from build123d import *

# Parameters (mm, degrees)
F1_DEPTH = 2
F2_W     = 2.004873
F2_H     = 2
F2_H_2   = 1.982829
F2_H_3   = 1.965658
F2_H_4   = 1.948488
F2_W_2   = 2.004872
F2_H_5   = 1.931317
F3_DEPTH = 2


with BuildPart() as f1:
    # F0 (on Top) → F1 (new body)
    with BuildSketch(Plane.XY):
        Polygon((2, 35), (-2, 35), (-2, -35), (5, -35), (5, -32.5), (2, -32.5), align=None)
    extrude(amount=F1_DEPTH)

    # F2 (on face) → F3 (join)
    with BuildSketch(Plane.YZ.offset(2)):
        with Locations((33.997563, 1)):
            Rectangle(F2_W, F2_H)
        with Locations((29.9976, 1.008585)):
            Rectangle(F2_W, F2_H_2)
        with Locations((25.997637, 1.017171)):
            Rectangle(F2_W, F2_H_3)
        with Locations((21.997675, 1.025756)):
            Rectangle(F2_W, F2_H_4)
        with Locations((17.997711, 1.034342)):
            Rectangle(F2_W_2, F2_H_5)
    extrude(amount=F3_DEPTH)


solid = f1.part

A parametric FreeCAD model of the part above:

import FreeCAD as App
import Part
import Sketcher

doc = App.newDocument("Part")
body = doc.addObject("PartDesign::Body", "Body")

# Sketch on XY plane
sketch1 = doc.addObject("Sketcher::SketchObject", "Sketch")
body.addObject(sketch1)
sketch1.AttachmentSupport = (doc.XY_Plane, [""])
sketch1.MapMode = "FlatFace"
sketch1.addGeometry(Part.LineSegment(App.Vector(2, 35, 0), App.Vector(-2, 35, 0)), False)
sketch1.addGeometry(Part.LineSegment(App.Vector(-2, 35, 0), App.Vector(-2, -35, 0)), False)
sketch1.addGeometry(Part.LineSegment(App.Vector(-2, -35, 0), App.Vector(5, -35, 0)), False)
sketch1.addGeometry(Part.LineSegment(App.Vector(5, -35, 0), App.Vector(5, -32.5, 0)), False)
sketch1.addGeometry(Part.LineSegment(App.Vector(5, -32.5, 0), App.Vector(2, -32.5, 0)), False)
sketch1.addGeometry(Part.LineSegment(App.Vector(2, -32.5, 0), App.Vector(2, 35, 0)), False)
sketch1.addConstraint(Sketcher.Constraint("Coincident", 0, 2, 1, 1))
sketch1.addConstraint(Sketcher.Constraint("Coincident", 1, 2, 2, 1))
sketch1.addConstraint(Sketcher.Constraint("Coincident", 2, 2, 3, 1))
sketch1.addConstraint(Sketcher.Constraint("Coincident", 3, 2, 4, 1))
sketch1.addConstraint(Sketcher.Constraint("Coincident", 4, 2, 5, 1))
sketch1.addConstraint(Sketcher.Constraint("Coincident", 5, 2, 0, 1))
sketch1.addConstraint(Sketcher.Constraint("Horizontal", 0))
sketch1.addConstraint(Sketcher.Constraint("Vertical", 1))
sketch1.addConstraint(Sketcher.Constraint("Horizontal", 2))
sketch1.addConstraint(Sketcher.Constraint("Vertical", 3))
sketch1.addConstraint(Sketcher.Constraint("Horizontal", 4))
sketch1.addConstraint(Sketcher.Constraint("Vertical", 5))
sketch1.addConstraint(Sketcher.Constraint("Symmetric", 1, 2, 5, 2, -1, 1))
sketch1.addConstraint(Sketcher.Constraint("DistanceX", 0, 2, 0, 1, 4.0))
sketch1.addConstraint(Sketcher.Constraint("DistanceX", 2, 1, 2, 2, 7.0))
sketch1.addConstraint(Sketcher.Constraint("DistanceY", 1, 2, 1, 1, 70.0))
sketch1.addConstraint(Sketcher.Constraint("DistanceY", 3, 1, 3, 2, 2.5))
pad1 = doc.addObject("PartDesign::Pad", "Pad")
body.addObject(pad1)
pad1.Profile = sketch1
pad1.Length = 2

# Sketch on YZ plane
sketch2 = doc.addObject("Sketcher::SketchObject", "Sketch001")
body.addObject(sketch2)
sketch2.AttachmentSupport = (doc.YZ_Plane, [""])
sketch2.MapMode = "FlatFace"
sketch2.AttachmentOffset = App.Placement(App.Vector(0, 0, 2), App.Rotation())
sketch2.addGeometry(Part.LineSegment(App.Vector(32.995126, 2, 0), App.Vector(32.995126, 0, 0)), False)
sketch2.addGeometry(Part.LineSegment(App.Vector(32.995126, 0, 0), App.Vector(35, 0, 0)), False)
sketch2.addGeometry(Part.LineSegment(App.Vector(35, 0, 0), App.Vector(35, 2, 0)), False)
sketch2.addGeometry(Part.LineSegment(App.Vector(35, 2, 0), App.Vector(32.995126, 2, 0)), False)
sketch2.addGeometry(Part.LineSegment(App.Vector(28.995164, 1.999999, 0), App.Vector(28.995164, 0.017171, 0)), False)
sketch2.addGeometry(Part.LineSegment(App.Vector(28.995164, 0.017171, 0), App.Vector(31.000037, 0.017171, 0)), False)
sketch2.addGeometry(Part.LineSegment(App.Vector(31.000037, 0.017171, 0), App.Vector(31.000037, 1.999999, 0)), False)
sketch2.addGeometry(Part.LineSegment(App.Vector(31.000037, 1.999999, 0), App.Vector(28.995164, 1.999999, 0)), False)
sketch2.addGeometry(Part.LineSegment(App.Vector(24.9952, 2, 0), App.Vector(24.9952, 0.034342, 0)), False)
sketch2.addGeometry(Part.LineSegment(App.Vector(24.9952, 0.034342, 0), App.Vector(27.000073, 0.034342, 0)), False)
sketch2.addGeometry(Part.LineSegment(App.Vector(27.000073, 0.034342, 0), App.Vector(27.000073, 2, 0)), False)
sketch2.addGeometry(Part.LineSegment(App.Vector(27.000073, 2, 0), App.Vector(24.9952, 2, 0)), False)
sketch2.addGeometry(Part.LineSegment(App.Vector(20.995238, 2, 0), App.Vector(20.995238, 0.051512, 0)), False)
sketch2.addGeometry(Part.LineSegment(App.Vector(20.995238, 0.051512, 0), App.Vector(23.000111, 0.051512, 0)), False)
sketch2.addGeometry(Part.LineSegment(App.Vector(23.000111, 0.051512, 0), App.Vector(23.000111, 2, 0)), False)
sketch2.addGeometry(Part.LineSegment(App.Vector(23.000111, 2, 0), App.Vector(20.995238, 2, 0)), False)
sketch2.addGeometry(Part.LineSegment(App.Vector(16.995275, 2.000001, 0), App.Vector(16.995275, 0.068683, 0)), False)
sketch2.addGeometry(Part.LineSegment(App.Vector(16.995275, 0.068683, 0), App.Vector(19.000147, 0.068683, 0)), False)
sketch2.addGeometry(Part.LineSegment(App.Vector(19.000147, 0.068683, 0), App.Vector(19.000147, 2.000001, 0)), False)
sketch2.addGeometry(Part.LineSegment(App.Vector(19.000147, 2.000001, 0), App.Vector(16.995275, 2.000001, 0)), False)
sketch2.addConstraint(Sketcher.Constraint("Coincident", 0, 2, 1, 1))
sketch2.addConstraint(Sketcher.Constraint("Coincident", 1, 2, 2, 1))
sketch2.addConstraint(Sketcher.Constraint("Coincident", 2, 2, 3, 1))
sketch2.addConstraint(Sketcher.Constraint("Coincident", 3, 2, 0, 1))
sketch2.addConstraint(Sketcher.Constraint("Coincident", 4, 2, 5, 1))
sketch2.addConstraint(Sketcher.Constraint("Coincident", 5, 2, 6, 1))
sketch2.addConstraint(Sketcher.Constraint("Coincident", 6, 2, 7, 1))
sketch2.addConstraint(Sketcher.Constraint("Coincident", 7, 2, 4, 1))
sketch2.addConstraint(Sketcher.Constraint("Coincident", 8, 2, 9, 1))
sketch2.addConstraint(Sketcher.Constraint("Coincident", 9, 2, 10, 1))
sketch2.addConstraint(Sketcher.Constraint("Coincident", 10, 2, 11, 1))
sketch2.addConstraint(Sketcher.Constraint("Coincident", 11, 2, 8, 1))
sketch2.addConstraint(Sketcher.Constraint("Coincident", 12, 2, 13, 1))
sketch2.addConstraint(Sketcher.Constraint("Coincident", 13, 2, 14, 1))
sketch2.addConstraint(Sketcher.Constraint("Coincident", 14, 2, 15, 1))
sketch2.addConstraint(Sketcher.Constraint("Coincident", 15, 2, 12, 1))
sketch2.addConstraint(Sketcher.Constraint("Coincident", 16, 2, 17, 1))
sketch2.addConstraint(Sketcher.Constraint("Coincident", 17, 2, 18, 1))
sketch2.addConstraint(Sketcher.Constraint("Coincident", 18, 2, 19, 1))
sketch2.addConstraint(Sketcher.Constraint("Coincident", 19, 2, 16, 1))
sketch2.addConstraint(Sketcher.Constraint("Vertical", 0))
sketch2.addConstraint(Sketcher.Constraint("Horizontal", 1))
sketch2.addConstraint(Sketcher.Constraint("Vertical", 2))
sketch2.addConstraint(Sketcher.Constraint("Horizontal", 3))
sketch2.addConstraint(Sketcher.Constraint("Vertical", 4))
sketch2.addConstraint(Sketcher.Constraint("Horizontal", 5))
sketch2.addConstraint(Sketcher.Constraint("Vertical", 6))
sketch2.addConstraint(Sketcher.Constraint("Horizontal", 7))
sketch2.addConstraint(Sketcher.Constraint("Vertical", 8))
sketch2.addConstraint(Sketcher.Constraint("Horizontal", 9))
sketch2.addConstraint(Sketcher.Constraint("Vertical", 10))
sketch2.addConstraint(Sketcher.Constraint("Horizontal", 11))
sketch2.addConstraint(Sketcher.Constraint("Vertical", 12))
sketch2.addConstraint(Sketcher.Constraint("Horizontal", 13))
sketch2.addConstraint(Sketcher.Constraint("Vertical", 14))
sketch2.addConstraint(Sketcher.Constraint("Horizontal", 15))
sketch2.addConstraint(Sketcher.Constraint("Vertical", 16))
sketch2.addConstraint(Sketcher.Constraint("Horizontal", 17))
sketch2.addConstraint(Sketcher.Constraint("Vertical", 18))
sketch2.addConstraint(Sketcher.Constraint("Horizontal", 19))
sketch2.addConstraint(Sketcher.Constraint("PointOnObject", 0, 2, -1))
sketch2.addConstraint(Sketcher.Constraint("Horizontal", 3, 2, 6, 2))
sketch2.addConstraint(Sketcher.Constraint("Horizontal", 7, 2, 10, 2))
sketch2.addConstraint(Sketcher.Constraint("Horizontal", 11, 2, 14, 2))
sketch2.addConstraint(Sketcher.Constraint("Horizontal", 15, 2, 18, 2))
sketch2.addConstraint(Sketcher.Constraint("Equal", 3, 5))
sketch2.addConstraint(Sketcher.Constraint("Equal", 7, 9))
sketch2.addConstraint(Sketcher.Constraint("Equal", 11, 13))
sketch2.addConstraint(Sketcher.Constraint("Equal", 15, 17))
sketch2.addConstraint(Sketcher.Constraint("DistanceY", 0, 2, 0, 1, 2.0))
sketch2.addConstraint(Sketcher.Constraint("DistanceX", -1, 1, 1, 2, 35.0))
sketch2.addConstraint(Sketcher.Constraint("DistanceX", 17, 1, 17, 2, 2.004872))
sketch2.addConstraint(Sketcher.Constraint("DistanceY", 4, 2, 4, 1, 1.982829))
sketch2.addConstraint(Sketcher.Constraint("DistanceX", -1, 1, 8, 2, 24.9952))
sketch2.addConstraint(Sketcher.Constraint("DistanceY", 8, 2, 8, 1, 1.965658))
sketch2.addConstraint(Sketcher.Constraint("DistanceY", 12, 2, 12, 1, 1.948488))
sketch2.addConstraint(Sketcher.Constraint("DistanceY", 16, 2, 16, 1, 1.931317))
sketch2.addConstraint(Sketcher.Constraint("DistanceX", -1, 1, 12, 2, 20.995238))
sketch2.addConstraint(Sketcher.Constraint("DistanceX", 5, 2, 0, 2, 1.99509))
sketch2.addConstraint(Sketcher.Constraint("DistanceX", 17, 2, 12, 2, 1.995092))
pad2 = doc.addObject("PartDesign::Pad", "Pad001")
body.addObject(pad2)
pad2.Profile = sketch2
pad2.Length = 2

doc.recompute()
